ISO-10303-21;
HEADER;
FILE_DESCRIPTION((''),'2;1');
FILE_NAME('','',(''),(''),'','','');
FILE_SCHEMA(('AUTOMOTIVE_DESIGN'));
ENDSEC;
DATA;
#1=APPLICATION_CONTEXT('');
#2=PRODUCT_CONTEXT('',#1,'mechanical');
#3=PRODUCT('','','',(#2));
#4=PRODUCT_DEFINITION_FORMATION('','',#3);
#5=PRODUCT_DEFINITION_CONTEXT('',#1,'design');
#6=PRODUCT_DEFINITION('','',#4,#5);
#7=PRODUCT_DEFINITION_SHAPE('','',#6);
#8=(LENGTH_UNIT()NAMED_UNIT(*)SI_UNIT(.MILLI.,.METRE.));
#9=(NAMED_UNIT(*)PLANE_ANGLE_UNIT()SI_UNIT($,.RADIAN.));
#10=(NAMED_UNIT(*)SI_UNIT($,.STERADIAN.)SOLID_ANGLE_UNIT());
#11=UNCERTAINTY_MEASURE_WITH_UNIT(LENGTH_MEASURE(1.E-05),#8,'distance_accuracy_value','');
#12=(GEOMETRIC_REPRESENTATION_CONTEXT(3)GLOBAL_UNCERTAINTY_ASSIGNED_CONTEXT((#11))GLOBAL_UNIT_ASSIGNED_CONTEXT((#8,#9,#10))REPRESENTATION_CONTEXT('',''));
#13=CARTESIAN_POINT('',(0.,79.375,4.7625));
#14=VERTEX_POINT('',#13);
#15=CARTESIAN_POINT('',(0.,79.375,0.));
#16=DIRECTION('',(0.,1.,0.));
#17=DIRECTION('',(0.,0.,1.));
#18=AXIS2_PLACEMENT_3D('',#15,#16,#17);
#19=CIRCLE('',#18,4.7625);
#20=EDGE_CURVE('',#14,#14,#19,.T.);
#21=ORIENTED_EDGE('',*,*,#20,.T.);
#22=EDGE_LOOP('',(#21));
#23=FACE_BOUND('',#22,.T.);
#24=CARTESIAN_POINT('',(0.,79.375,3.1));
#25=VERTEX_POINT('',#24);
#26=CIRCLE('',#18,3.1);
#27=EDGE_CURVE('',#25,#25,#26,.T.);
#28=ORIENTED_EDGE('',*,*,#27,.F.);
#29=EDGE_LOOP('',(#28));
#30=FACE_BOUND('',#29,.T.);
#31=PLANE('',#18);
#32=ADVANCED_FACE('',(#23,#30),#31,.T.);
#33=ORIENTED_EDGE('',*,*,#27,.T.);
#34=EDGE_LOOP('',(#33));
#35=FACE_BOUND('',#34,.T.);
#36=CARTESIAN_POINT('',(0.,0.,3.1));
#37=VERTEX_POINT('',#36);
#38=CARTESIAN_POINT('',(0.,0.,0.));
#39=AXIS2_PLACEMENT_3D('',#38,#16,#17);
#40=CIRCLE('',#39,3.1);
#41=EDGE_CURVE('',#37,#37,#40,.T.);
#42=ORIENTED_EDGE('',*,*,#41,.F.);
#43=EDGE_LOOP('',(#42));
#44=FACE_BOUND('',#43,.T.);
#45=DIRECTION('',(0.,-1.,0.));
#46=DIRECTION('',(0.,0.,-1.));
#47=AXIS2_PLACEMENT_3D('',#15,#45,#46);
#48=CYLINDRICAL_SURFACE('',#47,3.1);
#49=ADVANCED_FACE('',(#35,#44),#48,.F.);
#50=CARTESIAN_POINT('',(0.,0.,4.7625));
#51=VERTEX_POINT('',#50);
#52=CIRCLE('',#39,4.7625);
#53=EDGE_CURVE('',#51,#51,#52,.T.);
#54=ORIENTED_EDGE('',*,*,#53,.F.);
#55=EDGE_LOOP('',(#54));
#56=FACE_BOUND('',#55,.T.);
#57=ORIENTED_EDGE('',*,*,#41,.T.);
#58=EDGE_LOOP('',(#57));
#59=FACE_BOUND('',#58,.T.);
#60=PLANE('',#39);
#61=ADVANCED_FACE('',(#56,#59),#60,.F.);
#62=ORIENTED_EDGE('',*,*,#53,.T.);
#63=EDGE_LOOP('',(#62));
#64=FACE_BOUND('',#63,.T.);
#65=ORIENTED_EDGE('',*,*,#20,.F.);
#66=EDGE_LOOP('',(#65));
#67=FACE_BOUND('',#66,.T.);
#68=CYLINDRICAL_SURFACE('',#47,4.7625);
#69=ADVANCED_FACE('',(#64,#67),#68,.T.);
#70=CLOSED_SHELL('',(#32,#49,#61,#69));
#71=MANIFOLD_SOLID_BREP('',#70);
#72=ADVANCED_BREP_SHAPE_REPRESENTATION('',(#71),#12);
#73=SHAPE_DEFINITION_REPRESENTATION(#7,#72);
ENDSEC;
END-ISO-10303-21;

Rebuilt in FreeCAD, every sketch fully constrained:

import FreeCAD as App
import Part
import Sketcher
from FreeCAD import Vector
Q = App.Units.Quantity

doc = App.newDocument("Part")
body = doc.addObject("PartDesign::Body", "Body")

# Sketch on XZ plane
sketch1 = doc.addObject("Sketcher::SketchObject", "Sketch")
body.addObject(sketch1)
sketch1.AttachmentSupport = (doc.XZ_Plane, [""])
sketch1.MapMode = "FlatFace"
sketch1.addGeometry([
    Part.Circle(Vector(0, 0, 0), Vector(0, 0, 1), 4.8),
    Part.Circle(Vector(0, 0, 0), Vector(0, 0, 1), 3.1),
], False)
sketch1.addConstraint([
    Sketcher.Constraint("Coincident", 0, 3, -1, 1),
    Sketcher.Constraint("Coincident", 1, 3, -1, 1),
    Sketcher.Constraint("Diameter", 0, Q("0.375 in")),
    Sketcher.Constraint("Diameter", 1, 6.2),
])
pad1 = doc.addObject("PartDesign::Pad", "Pad")
body.addObject(pad1)
pad1.Profile = sketch1
pad1.Length = Q("3.125 in")
pad1.Reversed = True

doc.recompute()
